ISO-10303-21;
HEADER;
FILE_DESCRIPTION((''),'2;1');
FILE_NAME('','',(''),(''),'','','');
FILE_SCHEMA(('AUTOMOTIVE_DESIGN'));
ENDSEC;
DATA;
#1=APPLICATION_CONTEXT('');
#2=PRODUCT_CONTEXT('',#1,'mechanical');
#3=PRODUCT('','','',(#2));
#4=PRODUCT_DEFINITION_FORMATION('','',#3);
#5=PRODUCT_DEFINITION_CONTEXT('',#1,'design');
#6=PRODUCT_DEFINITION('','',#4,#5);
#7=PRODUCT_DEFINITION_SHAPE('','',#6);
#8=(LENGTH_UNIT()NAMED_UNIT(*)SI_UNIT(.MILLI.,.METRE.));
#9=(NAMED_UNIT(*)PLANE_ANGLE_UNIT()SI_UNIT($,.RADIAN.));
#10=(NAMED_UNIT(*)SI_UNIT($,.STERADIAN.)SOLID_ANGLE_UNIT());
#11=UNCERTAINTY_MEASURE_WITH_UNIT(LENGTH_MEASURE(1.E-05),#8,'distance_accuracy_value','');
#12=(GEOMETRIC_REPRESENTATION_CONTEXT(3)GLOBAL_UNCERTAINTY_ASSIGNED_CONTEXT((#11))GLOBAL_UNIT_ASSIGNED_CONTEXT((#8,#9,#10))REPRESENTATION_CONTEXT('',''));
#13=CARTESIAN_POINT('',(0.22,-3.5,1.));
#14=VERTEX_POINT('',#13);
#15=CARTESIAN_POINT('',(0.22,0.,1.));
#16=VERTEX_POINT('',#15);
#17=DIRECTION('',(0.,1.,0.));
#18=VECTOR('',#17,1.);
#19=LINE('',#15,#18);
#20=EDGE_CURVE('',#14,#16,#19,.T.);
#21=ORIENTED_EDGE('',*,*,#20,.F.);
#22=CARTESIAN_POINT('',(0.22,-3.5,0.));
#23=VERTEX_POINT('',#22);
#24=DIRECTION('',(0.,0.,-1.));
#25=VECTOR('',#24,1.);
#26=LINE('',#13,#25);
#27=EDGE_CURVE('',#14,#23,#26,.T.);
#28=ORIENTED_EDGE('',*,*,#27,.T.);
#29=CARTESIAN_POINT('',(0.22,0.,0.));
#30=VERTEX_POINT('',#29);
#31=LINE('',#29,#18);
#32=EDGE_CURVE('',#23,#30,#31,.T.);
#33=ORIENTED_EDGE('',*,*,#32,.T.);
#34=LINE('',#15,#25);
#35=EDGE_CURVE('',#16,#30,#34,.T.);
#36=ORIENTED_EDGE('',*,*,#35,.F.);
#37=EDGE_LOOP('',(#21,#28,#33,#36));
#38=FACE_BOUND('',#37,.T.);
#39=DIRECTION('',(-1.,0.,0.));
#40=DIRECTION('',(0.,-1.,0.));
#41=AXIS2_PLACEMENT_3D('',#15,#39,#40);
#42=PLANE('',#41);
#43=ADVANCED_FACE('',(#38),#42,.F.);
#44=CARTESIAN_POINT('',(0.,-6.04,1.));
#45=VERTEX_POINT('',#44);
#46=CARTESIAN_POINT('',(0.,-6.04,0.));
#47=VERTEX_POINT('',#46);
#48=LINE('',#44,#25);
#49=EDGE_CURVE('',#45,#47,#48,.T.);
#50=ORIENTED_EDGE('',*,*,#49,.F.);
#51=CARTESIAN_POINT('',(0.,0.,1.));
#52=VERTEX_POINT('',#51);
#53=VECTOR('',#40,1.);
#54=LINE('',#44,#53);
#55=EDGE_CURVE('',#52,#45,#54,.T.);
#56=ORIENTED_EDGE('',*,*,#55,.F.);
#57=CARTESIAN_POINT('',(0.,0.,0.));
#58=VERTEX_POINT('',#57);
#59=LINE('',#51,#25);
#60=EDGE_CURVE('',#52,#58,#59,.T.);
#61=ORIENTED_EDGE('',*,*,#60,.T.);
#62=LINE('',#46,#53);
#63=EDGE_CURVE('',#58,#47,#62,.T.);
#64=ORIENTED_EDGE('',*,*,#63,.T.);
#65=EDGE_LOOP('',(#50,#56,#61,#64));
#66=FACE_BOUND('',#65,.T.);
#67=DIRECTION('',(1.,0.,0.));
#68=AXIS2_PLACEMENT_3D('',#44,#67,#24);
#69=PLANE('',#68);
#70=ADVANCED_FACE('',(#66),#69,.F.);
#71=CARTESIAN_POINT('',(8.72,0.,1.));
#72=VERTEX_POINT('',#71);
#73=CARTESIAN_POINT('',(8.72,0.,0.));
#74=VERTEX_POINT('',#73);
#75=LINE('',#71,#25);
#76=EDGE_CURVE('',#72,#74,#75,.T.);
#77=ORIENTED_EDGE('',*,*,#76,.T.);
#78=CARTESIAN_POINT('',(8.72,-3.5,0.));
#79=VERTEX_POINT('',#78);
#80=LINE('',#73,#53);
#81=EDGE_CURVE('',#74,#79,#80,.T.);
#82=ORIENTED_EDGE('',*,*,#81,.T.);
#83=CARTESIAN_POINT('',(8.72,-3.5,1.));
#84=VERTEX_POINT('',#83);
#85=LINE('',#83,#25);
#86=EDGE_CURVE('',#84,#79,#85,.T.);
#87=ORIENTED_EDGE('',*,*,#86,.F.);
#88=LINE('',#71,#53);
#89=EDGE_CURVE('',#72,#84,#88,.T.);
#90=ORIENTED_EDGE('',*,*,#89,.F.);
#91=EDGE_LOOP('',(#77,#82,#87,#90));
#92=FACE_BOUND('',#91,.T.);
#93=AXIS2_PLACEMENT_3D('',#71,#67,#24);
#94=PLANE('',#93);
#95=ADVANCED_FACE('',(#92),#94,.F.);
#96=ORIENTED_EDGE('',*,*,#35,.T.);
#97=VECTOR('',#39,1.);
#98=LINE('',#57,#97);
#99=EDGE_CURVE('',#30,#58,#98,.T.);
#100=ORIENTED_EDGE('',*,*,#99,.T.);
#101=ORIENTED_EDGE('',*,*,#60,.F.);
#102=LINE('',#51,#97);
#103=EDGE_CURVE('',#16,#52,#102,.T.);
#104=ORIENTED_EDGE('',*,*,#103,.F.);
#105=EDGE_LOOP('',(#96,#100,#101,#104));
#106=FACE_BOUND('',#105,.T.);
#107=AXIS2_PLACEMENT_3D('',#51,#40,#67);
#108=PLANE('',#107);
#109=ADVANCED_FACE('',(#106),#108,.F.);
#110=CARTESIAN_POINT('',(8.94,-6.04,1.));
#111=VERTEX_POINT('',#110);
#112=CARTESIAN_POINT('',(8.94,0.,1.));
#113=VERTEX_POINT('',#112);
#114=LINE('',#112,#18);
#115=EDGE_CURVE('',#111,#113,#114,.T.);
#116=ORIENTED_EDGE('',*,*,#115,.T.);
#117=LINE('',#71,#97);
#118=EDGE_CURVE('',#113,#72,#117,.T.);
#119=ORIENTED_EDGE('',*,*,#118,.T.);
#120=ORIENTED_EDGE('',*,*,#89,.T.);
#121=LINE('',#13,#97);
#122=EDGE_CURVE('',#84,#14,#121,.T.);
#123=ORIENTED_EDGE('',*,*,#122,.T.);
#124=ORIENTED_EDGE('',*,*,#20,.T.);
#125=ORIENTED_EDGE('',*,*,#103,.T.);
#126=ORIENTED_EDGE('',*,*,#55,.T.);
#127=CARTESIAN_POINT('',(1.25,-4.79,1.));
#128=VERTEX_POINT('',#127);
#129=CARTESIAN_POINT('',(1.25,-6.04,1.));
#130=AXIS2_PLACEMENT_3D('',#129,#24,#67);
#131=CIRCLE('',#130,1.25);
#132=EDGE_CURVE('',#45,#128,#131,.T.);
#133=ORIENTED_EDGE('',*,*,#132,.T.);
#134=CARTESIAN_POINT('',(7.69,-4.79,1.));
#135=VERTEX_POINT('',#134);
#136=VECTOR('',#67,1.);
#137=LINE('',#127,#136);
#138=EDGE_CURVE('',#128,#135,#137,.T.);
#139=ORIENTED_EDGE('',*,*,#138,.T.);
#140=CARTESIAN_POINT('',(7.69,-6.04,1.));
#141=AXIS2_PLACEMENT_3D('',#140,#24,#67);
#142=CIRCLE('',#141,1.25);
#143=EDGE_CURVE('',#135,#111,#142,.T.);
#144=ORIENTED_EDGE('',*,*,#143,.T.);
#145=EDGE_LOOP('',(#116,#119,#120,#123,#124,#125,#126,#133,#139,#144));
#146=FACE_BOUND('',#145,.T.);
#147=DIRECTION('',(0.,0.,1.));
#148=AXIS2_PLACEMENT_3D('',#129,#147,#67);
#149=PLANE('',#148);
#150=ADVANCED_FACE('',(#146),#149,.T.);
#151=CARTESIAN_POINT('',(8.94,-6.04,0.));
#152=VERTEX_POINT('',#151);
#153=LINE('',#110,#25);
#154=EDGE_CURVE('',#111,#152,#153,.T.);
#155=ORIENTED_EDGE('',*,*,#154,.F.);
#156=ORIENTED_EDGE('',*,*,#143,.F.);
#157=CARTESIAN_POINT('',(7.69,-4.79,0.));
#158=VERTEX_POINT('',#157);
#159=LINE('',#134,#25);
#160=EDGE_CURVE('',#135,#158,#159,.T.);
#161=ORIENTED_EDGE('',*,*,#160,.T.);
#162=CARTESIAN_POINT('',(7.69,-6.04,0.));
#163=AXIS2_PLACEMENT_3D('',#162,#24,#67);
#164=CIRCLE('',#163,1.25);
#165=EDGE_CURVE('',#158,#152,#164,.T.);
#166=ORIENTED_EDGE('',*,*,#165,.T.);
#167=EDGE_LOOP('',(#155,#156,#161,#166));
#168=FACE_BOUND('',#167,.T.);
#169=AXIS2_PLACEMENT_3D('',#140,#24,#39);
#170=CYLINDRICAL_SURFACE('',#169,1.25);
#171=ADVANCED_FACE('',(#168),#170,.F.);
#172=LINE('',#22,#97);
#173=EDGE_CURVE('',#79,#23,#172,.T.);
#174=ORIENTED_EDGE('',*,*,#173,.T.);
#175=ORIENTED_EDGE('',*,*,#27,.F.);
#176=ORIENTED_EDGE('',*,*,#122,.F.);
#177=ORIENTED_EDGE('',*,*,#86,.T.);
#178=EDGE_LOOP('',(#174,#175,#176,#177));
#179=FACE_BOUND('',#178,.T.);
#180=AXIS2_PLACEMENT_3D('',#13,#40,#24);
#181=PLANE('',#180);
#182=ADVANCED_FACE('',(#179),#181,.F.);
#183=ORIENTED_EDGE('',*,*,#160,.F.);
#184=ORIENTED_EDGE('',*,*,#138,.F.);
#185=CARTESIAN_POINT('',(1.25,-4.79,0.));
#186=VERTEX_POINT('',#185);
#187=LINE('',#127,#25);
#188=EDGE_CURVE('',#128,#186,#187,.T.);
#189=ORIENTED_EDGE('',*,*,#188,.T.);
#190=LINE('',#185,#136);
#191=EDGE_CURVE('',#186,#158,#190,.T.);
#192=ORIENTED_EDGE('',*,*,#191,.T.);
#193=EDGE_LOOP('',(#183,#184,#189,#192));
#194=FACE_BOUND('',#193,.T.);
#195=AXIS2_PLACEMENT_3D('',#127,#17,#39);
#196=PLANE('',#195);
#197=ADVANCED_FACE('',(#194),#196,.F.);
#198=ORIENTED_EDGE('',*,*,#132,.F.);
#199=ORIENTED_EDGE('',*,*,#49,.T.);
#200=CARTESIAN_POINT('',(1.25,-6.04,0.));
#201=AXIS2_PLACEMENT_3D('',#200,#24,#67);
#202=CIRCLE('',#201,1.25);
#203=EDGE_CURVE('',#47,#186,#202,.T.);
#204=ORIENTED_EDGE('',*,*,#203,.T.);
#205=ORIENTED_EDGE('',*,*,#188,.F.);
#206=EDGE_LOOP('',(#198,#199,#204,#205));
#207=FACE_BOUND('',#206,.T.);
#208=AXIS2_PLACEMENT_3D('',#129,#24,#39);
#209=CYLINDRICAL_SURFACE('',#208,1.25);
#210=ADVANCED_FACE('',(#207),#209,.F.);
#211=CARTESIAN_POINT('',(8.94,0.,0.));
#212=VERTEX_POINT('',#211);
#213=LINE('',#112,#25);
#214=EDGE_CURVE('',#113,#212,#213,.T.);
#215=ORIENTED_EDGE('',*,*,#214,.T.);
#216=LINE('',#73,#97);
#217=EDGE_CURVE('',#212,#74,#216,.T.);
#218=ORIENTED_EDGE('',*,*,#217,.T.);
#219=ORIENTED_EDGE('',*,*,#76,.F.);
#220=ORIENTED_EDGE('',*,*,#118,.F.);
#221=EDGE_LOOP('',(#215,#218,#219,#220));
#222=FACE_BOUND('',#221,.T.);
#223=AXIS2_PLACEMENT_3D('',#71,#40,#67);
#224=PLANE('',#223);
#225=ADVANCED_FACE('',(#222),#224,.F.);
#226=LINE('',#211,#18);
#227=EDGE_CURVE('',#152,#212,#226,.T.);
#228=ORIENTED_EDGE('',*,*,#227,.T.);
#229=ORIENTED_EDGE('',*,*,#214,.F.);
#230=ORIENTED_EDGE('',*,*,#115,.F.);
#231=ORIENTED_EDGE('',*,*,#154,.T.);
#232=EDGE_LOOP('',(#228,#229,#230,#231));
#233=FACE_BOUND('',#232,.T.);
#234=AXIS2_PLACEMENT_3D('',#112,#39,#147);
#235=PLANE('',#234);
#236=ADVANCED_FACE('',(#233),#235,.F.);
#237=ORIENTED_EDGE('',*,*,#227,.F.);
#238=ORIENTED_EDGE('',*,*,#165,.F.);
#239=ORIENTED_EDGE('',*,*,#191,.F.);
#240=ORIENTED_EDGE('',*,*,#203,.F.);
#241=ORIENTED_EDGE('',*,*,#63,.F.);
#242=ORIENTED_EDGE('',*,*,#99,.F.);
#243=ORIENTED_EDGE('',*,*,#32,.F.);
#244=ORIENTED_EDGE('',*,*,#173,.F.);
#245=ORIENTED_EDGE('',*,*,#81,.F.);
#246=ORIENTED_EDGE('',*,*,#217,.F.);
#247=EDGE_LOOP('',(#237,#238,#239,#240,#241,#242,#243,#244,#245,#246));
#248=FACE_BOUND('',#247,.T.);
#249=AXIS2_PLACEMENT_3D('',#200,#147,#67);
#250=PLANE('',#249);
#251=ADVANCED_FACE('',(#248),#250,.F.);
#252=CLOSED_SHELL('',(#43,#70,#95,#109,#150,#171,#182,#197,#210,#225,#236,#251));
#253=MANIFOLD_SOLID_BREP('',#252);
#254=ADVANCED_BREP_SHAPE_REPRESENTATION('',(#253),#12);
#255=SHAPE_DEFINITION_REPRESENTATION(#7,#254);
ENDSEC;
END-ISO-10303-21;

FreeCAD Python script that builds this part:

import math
import FreeCAD as App
import Part
import Sketcher
from FreeCAD import Vector

doc = App.newDocument("Part")
params = doc.addObject("Spreadsheet::Sheet", "Params")
for row, (alias, value) in enumerate([
    ("sketch1_radius", "1.25 mm"),
    ("sketch1_width", "8.5 mm"),
    ("sketch1_height", "3.5 mm"),
    ("sketch1_width2", "6.44 mm"),
    ("sketch1_height2", "6.04 mm"),
    ("pad1_length", "1 mm"),
], start=1):
    params.set(f"A{row}", alias)
    params.set(f"B{row}", "=" + value)
    params.setAlias(f"B{row}", alias)

body = doc.addObject("PartDesign::Body", "Body")

sketch1 = body.newObject("Sketcher::SketchObject", "Sketch")
sketch1.AttachmentSupport = (doc.getObject("XY_Plane"), [""])
sketch1.MapMode = "FlatFace"
sketch1.addGeometry([
    Part.LineSegment(Vector(0, 0, 0), Vector(0, -6.04, 0)),
    Part.ArcOfCircle(Part.Circle(Vector(1.25, -6.04, 0), Vector(0, 0, 1), 1.25), math.radians(90), math.radians(180)),
    Part.LineSegment(Vector(1.25, -4.79, 0), Vector(7.69, -4.79, 0)),
    Part.ArcOfCircle(Part.Circle(Vector(7.69, -6.04, 0), Vector(0, 0, 1), 1.25), math.radians(0), math.radians(90)),
    Part.LineSegment(Vector(8.94, -6.04, 0), Vector(8.94, 0, 0)),
    Part.LineSegment(Vector(8.94, 0, 0), Vector(8.72, 0, 0)),
    Part.LineSegment(Vector(8.72, 0, 0), Vector(8.72, -3.5, 0)),
    Part.LineSegment(Vector(8.72, -3.5, 0), Vector(0.22, -3.5, 0)),
    Part.LineSegment(Vector(0.22, -3.5, 0), Vector(0.22, 0, 0)),
    Part.LineSegment(Vector(0.22, 0, 0), Vector(0, 0, 0)),
], False)
sketch1.addConstraint([
    Sketcher.Constraint("Tangent", 0, 2, 1, 2),
    Sketcher.Constraint("Tangent", 1, 1, 2, 1),
    Sketcher.Constraint("Tangent", 2, 2, 3, 2),
    Sketcher.Constraint("Tangent", 3, 1, 4, 1),
    Sketcher.Constraint("Coincident", 4, 2, 5, 1),
    Sketcher.Constraint("Coincident", 5, 2, 6, 1),
    Sketcher.Constraint("Coincident", 6, 2, 7, 1),
    Sketcher.Constraint("Coincident", 7, 2, 8, 1),
    Sketcher.Constraint("Coincident", 8, 2, 9, 1),
    Sketcher.Constraint("Coincident", 9, 2, 0, 1),
    Sketcher.Constraint("Vertical", 0),
    Sketcher.Constraint("Horizontal", 2),
    Sketcher.Constraint("Vertical", 4),
    Sketcher.Constraint("Horizontal", 5),
    Sketcher.Constraint("Vertical", 6),
    Sketcher.Constraint("Horizontal", 7),
    Sketcher.Constraint("Vertical", 8),
    Sketcher.Constraint("Horizontal", 9),
    Sketcher.Constraint("Coincident", 9, 2, -1, 1),
    Sketcher.Constraint("Equal", 1, 3),
    Sketcher.Constraint("PointOnObject", 4, 2, -1),
    Sketcher.Constraint("Equal", 5, 9),
    Sketcher.Constraint("Radius", 1, 1.25),
    Sketcher.Constraint("DistanceX", 7, 2, 7, 1, 8.5),
    Sketcher.Constraint("DistanceY", 6, 2, 6, 1, 3.5),
    Sketcher.Constraint("DistanceX", 2, 1, 2, 2, 6.44),
    Sketcher.Constraint("DistanceY", 0, 2, 0, 1, 6.04),
])
sketch1.setExpression("Constraints[22]", "Params.sketch1_radius")
sketch1.setExpression("Constraints[23]", "Params.sketch1_width")
sketch1.setExpression("Constraints[24]", "Params.sketch1_height")
sketch1.setExpression("Constraints[25]", "Params.sketch1_width2")
sketch1.setExpression("Constraints[26]", "Params.sketch1_height2")
pad1 = body.newObject("PartDesign::Pad", "Pad")
pad1.Profile = sketch1
pad1.setExpression("Length", "Params.pad1_length")

doc.recompute()
